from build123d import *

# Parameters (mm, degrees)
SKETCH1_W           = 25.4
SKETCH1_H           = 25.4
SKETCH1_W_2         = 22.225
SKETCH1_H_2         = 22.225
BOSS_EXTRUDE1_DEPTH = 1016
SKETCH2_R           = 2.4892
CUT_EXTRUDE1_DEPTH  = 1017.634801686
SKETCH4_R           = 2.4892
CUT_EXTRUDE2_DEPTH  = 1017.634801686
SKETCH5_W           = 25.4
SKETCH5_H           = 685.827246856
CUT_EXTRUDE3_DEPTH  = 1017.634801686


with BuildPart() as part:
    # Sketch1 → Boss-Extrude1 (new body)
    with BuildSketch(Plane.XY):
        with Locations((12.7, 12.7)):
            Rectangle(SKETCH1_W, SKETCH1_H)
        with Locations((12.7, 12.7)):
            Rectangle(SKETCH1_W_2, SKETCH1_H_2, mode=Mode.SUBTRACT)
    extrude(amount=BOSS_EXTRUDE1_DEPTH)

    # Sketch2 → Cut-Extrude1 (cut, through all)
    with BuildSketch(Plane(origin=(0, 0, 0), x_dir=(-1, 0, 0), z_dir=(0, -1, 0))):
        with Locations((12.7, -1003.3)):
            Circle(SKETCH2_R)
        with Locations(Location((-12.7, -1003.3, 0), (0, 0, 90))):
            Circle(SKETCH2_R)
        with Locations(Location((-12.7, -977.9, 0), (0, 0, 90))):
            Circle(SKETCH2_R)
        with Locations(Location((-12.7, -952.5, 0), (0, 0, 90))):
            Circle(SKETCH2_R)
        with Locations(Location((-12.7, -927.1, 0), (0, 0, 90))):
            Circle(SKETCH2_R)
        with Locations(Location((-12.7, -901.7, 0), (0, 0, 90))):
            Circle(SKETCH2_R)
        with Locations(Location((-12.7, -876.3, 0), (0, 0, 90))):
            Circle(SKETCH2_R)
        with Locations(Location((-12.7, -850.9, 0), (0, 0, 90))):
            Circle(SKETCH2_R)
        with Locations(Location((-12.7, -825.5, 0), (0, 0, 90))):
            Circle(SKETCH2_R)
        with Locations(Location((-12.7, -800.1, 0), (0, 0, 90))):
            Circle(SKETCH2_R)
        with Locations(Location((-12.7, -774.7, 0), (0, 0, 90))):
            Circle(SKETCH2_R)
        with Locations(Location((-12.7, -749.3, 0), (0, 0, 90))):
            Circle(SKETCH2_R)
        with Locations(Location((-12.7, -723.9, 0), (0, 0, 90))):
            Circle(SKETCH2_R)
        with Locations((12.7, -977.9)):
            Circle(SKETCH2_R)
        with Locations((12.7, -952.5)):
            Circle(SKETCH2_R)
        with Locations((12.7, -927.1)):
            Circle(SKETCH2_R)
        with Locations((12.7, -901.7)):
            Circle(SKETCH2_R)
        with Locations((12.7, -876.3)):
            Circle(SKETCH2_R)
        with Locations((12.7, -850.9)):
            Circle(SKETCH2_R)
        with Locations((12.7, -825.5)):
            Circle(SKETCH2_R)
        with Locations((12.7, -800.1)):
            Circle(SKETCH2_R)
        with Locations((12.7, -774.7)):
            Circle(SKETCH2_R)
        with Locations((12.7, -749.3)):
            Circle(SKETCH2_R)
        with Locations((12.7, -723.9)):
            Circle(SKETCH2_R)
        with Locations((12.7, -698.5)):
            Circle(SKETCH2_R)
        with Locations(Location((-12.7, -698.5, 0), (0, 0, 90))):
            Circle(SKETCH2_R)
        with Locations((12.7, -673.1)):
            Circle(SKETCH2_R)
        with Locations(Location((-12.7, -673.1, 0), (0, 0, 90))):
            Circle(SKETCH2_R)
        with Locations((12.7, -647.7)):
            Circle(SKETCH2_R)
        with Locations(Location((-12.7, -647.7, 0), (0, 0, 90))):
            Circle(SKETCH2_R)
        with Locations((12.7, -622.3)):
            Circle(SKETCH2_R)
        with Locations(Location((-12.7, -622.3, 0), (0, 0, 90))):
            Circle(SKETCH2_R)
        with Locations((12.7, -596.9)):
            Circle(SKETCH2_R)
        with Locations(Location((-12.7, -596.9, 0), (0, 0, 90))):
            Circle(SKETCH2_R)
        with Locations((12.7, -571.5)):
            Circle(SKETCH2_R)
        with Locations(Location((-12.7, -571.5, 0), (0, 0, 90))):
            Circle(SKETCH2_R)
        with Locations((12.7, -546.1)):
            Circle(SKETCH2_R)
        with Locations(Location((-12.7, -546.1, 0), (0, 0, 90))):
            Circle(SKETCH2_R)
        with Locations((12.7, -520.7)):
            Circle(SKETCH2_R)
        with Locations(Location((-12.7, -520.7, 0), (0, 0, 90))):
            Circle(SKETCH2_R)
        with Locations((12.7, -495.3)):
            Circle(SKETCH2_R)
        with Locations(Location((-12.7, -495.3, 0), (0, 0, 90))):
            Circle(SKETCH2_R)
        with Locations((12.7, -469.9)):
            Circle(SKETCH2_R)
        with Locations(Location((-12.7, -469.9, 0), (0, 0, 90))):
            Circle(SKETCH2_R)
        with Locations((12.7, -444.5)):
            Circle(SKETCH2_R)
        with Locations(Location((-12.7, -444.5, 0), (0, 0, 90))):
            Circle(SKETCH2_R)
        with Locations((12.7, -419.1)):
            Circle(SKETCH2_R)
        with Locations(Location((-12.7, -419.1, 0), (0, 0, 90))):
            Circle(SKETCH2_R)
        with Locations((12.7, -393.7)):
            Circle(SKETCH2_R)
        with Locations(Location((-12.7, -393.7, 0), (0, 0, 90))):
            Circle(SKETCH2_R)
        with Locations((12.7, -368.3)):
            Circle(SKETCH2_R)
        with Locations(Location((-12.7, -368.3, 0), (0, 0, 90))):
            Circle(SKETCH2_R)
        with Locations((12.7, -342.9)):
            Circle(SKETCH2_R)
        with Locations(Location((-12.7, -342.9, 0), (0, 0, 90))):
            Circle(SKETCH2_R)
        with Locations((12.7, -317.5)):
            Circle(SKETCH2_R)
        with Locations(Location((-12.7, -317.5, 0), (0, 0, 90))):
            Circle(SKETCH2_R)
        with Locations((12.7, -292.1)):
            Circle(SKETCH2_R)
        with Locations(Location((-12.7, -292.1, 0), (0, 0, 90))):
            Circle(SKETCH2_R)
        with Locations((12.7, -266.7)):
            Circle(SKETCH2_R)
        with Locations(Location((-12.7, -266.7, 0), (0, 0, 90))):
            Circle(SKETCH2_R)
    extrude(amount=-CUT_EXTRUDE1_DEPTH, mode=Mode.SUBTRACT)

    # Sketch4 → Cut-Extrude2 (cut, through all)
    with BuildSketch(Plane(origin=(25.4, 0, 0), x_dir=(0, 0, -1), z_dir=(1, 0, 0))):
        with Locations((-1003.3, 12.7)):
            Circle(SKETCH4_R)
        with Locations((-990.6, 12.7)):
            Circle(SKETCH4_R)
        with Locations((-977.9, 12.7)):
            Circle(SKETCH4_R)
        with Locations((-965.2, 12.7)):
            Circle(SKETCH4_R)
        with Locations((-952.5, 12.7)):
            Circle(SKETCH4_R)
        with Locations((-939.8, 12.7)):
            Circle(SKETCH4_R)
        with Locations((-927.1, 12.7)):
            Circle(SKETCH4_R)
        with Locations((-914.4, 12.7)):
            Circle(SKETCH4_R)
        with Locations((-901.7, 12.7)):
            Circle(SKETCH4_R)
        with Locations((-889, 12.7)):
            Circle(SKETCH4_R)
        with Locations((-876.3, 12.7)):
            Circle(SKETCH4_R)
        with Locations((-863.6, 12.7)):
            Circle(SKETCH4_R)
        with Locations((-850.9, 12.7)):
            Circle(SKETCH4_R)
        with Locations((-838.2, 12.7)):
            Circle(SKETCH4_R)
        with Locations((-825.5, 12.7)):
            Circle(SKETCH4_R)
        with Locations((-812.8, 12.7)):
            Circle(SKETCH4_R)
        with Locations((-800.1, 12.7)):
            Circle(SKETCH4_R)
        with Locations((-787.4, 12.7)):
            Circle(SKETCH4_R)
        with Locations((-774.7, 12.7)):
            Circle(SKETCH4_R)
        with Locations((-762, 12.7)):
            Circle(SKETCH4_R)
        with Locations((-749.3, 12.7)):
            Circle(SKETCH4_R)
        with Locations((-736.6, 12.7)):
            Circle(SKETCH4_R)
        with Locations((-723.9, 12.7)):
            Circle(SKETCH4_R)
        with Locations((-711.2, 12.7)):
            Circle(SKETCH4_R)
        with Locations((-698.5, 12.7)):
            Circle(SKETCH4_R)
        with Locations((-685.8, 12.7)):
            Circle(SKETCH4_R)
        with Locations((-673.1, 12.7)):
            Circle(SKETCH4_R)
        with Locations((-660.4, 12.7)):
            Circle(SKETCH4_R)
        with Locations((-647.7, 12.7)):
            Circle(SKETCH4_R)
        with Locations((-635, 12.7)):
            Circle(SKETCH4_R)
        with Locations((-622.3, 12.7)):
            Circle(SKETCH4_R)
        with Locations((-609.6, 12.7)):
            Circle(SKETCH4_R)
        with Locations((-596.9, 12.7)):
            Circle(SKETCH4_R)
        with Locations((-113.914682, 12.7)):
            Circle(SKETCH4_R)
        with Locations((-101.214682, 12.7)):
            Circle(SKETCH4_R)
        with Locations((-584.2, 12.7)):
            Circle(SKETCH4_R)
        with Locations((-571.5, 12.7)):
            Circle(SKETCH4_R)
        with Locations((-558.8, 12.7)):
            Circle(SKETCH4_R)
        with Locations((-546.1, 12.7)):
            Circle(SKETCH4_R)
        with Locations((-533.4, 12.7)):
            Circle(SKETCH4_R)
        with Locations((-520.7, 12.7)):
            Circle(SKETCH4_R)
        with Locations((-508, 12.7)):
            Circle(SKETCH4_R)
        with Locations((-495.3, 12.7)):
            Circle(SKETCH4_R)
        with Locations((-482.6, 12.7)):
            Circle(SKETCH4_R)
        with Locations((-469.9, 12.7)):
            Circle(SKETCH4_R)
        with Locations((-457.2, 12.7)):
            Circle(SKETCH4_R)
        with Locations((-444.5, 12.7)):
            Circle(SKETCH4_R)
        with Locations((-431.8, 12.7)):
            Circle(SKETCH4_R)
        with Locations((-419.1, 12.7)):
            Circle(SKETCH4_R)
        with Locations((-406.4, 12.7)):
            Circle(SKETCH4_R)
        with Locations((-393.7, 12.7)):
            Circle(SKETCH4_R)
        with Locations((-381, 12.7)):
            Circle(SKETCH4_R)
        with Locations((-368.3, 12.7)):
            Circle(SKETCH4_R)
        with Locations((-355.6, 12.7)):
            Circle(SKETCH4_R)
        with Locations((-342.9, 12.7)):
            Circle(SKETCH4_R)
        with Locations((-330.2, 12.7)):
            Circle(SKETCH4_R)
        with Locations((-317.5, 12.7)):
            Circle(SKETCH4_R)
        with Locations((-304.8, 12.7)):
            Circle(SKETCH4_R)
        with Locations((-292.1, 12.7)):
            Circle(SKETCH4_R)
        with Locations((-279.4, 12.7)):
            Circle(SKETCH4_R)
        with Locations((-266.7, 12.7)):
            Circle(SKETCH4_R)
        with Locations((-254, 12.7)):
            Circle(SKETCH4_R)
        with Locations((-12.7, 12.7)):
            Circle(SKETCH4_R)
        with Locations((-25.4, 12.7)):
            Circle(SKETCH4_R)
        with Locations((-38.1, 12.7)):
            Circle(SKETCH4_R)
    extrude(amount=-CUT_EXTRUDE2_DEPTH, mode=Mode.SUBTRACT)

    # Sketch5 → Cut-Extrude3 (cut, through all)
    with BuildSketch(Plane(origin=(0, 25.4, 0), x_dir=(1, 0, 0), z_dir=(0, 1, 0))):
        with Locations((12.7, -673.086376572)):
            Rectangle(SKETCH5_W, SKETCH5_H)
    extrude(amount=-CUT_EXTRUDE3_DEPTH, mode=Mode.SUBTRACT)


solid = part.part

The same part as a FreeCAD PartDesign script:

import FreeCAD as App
import Part
import Sketcher
Q = App.Units.Quantity

doc = App.newDocument("Part")
params = doc.addObject("Spreadsheet::Sheet", "Params")
for row, (alias, value) in enumerate([
    ("sketch1_width", "1 in"),
    ("sketch1_width2", "0.875 in"),
    ("pad1_length", "40 in"),
    ("sketch2_diameter", "0.196 in"),
    ("sketch3_diameter", "0.196 in"),
    ("sketch4_width", "1 in"),
], start=1):
    params.set(f"A{row}", alias)
    params.set(f"B{row}", "=" + value)
    params.setAlias(f"B{row}", alias)

body = doc.addObject("PartDesign::Body", "Body")

sketch1 = doc.addObject("Sketcher::SketchObject", "Sketch")
body.addObject(sketch1)
sketch1.AttachmentSupport = (doc.XY_Plane, [""])
sketch1.MapMode = "FlatFace"
sketch1.addGeometry([
    Part.LineSegment(App.Vector(0, 25, 0), App.Vector(0, 0, 0)),
    Part.LineSegment(App.Vector(0, 0, 0), App.Vector(25, 0, 0)),
    Part.LineSegment(App.Vector(25, 0, 0), App.Vector(25, 25, 0)),
    Part.LineSegment(App.Vector(25, 25, 0), App.Vector(0, 25, 0)),
    Part.LineSegment(App.Vector(24, 2, 0), App.Vector(2, 2, 0)),
    Part.LineSegment(App.Vector(2, 2, 0), App.Vector(2, 24, 0)),
    Part.LineSegment(App.Vector(2, 24, 0), App.Vector(24, 24, 0)),
    Part.LineSegment(App.Vector(24, 24, 0), App.Vector(24, 2, 0)),
], False)
sketch1.addConstraint([
    Sketcher.Constraint("Coincident", 0, 2, 1, 1),
    Sketcher.Constraint("Coincident", 1, 2, 2, 1),
    Sketcher.Constraint("Coincident", 2, 2, 3, 1),
    Sketcher.Constraint("Coincident", 3, 2, 0, 1),
    Sketcher.Constraint("Coincident", 4, 2, 5, 1),
    Sketcher.Constraint("Coincident", 5, 2, 6, 1),
    Sketcher.Constraint("Coincident", 6, 2, 7, 1),
    Sketcher.Constraint("Coincident", 7, 2, 4, 1),
    Sketcher.Constraint("Vertical", 0),
    Sketcher.Constraint("Horizontal", 1),
    Sketcher.Constraint("Vertical", 2),
    Sketcher.Constraint("Horizontal", 3),
    Sketcher.Constraint("Horizontal", 4),
    Sketcher.Constraint("Vertical", 5),
    Sketcher.Constraint("Horizontal", 6),
    Sketcher.Constraint("Vertical", 7),
    Sketcher.Constraint("Coincident", 0, 2, -1, 1),
    Sketcher.Constraint("Equal", 3, 0),
    Sketcher.Constraint("Equal", 6, 5),
    Sketcher.Constraint("DistanceX", 1, 1, 1, 2, Q("1 in")),
    Sketcher.Constraint("DistanceX", 4, 2, 4, 1, Q("0.875 in")),
    Sketcher.Constraint("DistanceX", -1, 1, 4, 2, Q("0.0625 in")),
    Sketcher.Constraint("DistanceY", -1, 1, 4, 2, Q("0.0625 in")),
])
sketch1.setExpression("Constraints[19]", "Params.sketch1_width")
sketch1.setExpression("Constraints[20]", "Params.sketch1_width2")
pad1 = doc.addObject("PartDesign::Pad", "Pad")
body.addObject(pad1)
pad1.Profile = sketch1
pad1.setExpression("Length", "Params.pad1_length")

sketch2 = doc.addObject("Sketcher::SketchObject", "Sketch001")
body.addObject(sketch2)
sketch2.AttachmentSupport = (doc.XZ_Plane, [""])
sketch2.MapMode = "FlatFace"
sketch2.addGeometry([
    Part.Circle(App.Vector(-12.7, 1003.3, 0), App.Vector(0, 0, 1), 2.5),
    Part.Circle(App.Vector(12.7, 1003.3, 0), App.Vector(0, 0, 1), 2.5),
    Part.Circle(App.Vector(12.7, 977.9, 0), App.Vector(0, 0, 1), 2.5),
    Part.Circle(App.Vector(12.7, 952.5, 0), App.Vector(0, 0, 1), 2.5),
    Part.Circle(App.Vector(12.7, 927.1, 0), App.Vector(0, 0, 1), 2.5),
    Part.Circle(App.Vector(12.7, 901.7, 0), App.Vector(0, 0, 1), 2.5),
    Part.Circle(App.Vector(12.7, 876.3, 0), App.Vector(0, 0, 1), 2.5),
    Part.Circle(App.Vector(12.7, 850.9, 0), App.Vector(0, 0, 1), 2.5),
    Part.Circle(App.Vector(12.7, 825.5, 0), App.Vector(0, 0, 1), 2.5),
    Part.Circle(App.Vector(12.7, 800.1, 0), App.Vector(0, 0, 1), 2.5),
    Part.Circle(App.Vector(12.7, 774.7, 0), App.Vector(0, 0, 1), 2.5),
    Part.Circle(App.Vector(12.7, 749.3, 0), App.Vector(0, 0, 1), 2.5),
    Part.Circle(App.Vector(12.7, 723.9, 0), App.Vector(0, 0, 1), 2.5),
    Part.Circle(App.Vector(-12.7, 977.9, 0), App.Vector(0, 0, 1), 2.5),
    Part.Circle(App.Vector(-12.7, 952.5, 0), App.Vector(0, 0, 1), 2.5),
    Part.Circle(App.Vector(-12.7, 927.1, 0), App.Vector(0, 0, 1), 2.5),
    Part.Circle(App.Vector(-12.7, 901.7, 0), App.Vector(0, 0, 1), 2.5),
    Part.Circle(App.Vector(-12.7, 876.3, 0), App.Vector(0, 0, 1), 2.5),
    Part.Circle(App.Vector(-12.7, 850.9, 0), App.Vector(0, 0, 1), 2.5),
    Part.Circle(App.Vector(-12.7, 825.5, 0), App.Vector(0, 0, 1), 2.5),
    Part.Circle(App.Vector(-12.7, 800.1, 0), App.Vector(0, 0, 1), 2.5),
    Part.Circle(App.Vector(-12.7, 774.7, 0), App.Vector(0, 0, 1), 2.5),
    Part.Circle(App.Vector(-12.7, 749.3, 0), App.Vector(0, 0, 1), 2.5),
    Part.Circle(App.Vector(-12.7, 723.9, 0), App.Vector(0, 0, 1), 2.5),
    Part.Circle(App.Vector(-12.7, 698.5, 0), App.Vector(0, 0, 1), 2.5),
    Part.Circle(App.Vector(12.7, 698.5, 0), App.Vector(0, 0, 1), 2.5),
    Part.Circle(App.Vector(-12.7, 673.1, 0), App.Vector(0, 0, 1), 2.5),
    Part.Circle(App.Vector(12.7, 673.1, 0), App.Vector(0, 0, 1), 2.5),
    Part.Circle(App.Vector(-12.7, 647.7, 0), App.Vector(0, 0, 1), 2.5),
    Part.Circle(App.Vector(12.7, 647.7, 0), App.Vector(0, 0, 1), 2.5),
    Part.Circle(App.Vector(-12.7, 622.3, 0), App.Vector(0, 0, 1), 2.5),
    Part.Circle(App.Vector(12.7, 622.3, 0), App.Vector(0, 0, 1), 2.5),
    Part.Circle(App.Vector(-12.7, 596.9, 0), App.Vector(0, 0, 1), 2.5),
    Part.Circle(App.Vector(12.7, 596.9, 0), App.Vector(0, 0, 1), 2.5),
    Part.Circle(App.Vector(-12.7, 571.5, 0), App.Vector(0, 0, 1), 2.5),
    Part.Circle(App.Vector(12.7, 571.5, 0), App.Vector(0, 0, 1), 2.5),
    Part.Circle(App.Vector(-12.7, 546.1, 0), App.Vector(0, 0, 1), 2.5),
    Part.Circle(App.Vector(12.7, 546.1, 0), App.Vector(0, 0, 1), 2.5),
    Part.Circle(App.Vector(-12.7, 520.7, 0), App.Vector(0, 0, 1), 2.5),
    Part.Circle(App.Vector(12.7, 520.7, 0), App.Vector(0, 0, 1), 2.5),
    Part.Circle(App.Vector(-12.7, 495.3, 0), App.Vector(0, 0, 1), 2.5),
    Part.Circle(App.Vector(12.7, 495.3, 0), App.Vector(0, 0, 1), 2.5),
    Part.Circle(App.Vector(-12.7, 469.9, 0), App.Vector(0, 0, 1), 2.5),
    Part.Circle(App.Vector(12.7, 469.9, 0), App.Vector(0, 0, 1), 2.5),
    Part.Circle(App.Vector(-12.7, 444.5, 0), App.Vector(0, 0, 1), 2.5),
    Part.Circle(App.Vector(12.7, 444.5, 0), App.Vector(0, 0, 1), 2.5),
    Part.Circle(App.Vector(-12.7, 419.1, 0), App.Vector(0, 0, 1), 2.5),
    Part.Circle(App.Vector(12.7, 419.1, 0), App.Vector(0, 0, 1), 2.5),
    Part.Circle(App.Vector(-12.7, 393.7, 0), App.Vector(0, 0, 1), 2.5),
    Part.Circle(App.Vector(12.7, 393.7, 0), App.Vector(0, 0, 1), 2.5),
    Part.Circle(App.Vector(-12.7, 368.3, 0), App.Vector(0, 0, 1), 2.5),
    Part.Circle(App.Vector(12.7, 368.3, 0), App.Vector(0, 0, 1), 2.5),
    Part.Circle(App.Vector(-12.7, 342.9, 0), App.Vector(0, 0, 1), 2.5),
    Part.Circle(App.Vector(12.7, 342.9, 0), App.Vector(0, 0, 1), 2.5),
    Part.Circle(App.Vector(-12.7, 317.5, 0), App.Vector(0, 0, 1), 2.5),
    Part.Circle(App.Vector(12.7, 317.5, 0), App.Vector(0, 0, 1), 2.5),
    Part.Circle(App.Vector(-12.7, 292.1, 0), App.Vector(0, 0, 1), 2.5),
    Part.Circle(App.Vector(12.7, 292.1, 0), App.Vector(0, 0, 1), 2.5),
    Part.Circle(App.Vector(-12.7, 266.7, 0), App.Vector(0, 0, 1), 2.5),
    Part.Circle(App.Vector(12.7, 266.7, 0), App.Vector(0, 0, 1), 2.5),
], False)
sketch2.addConstraint([
    Sketcher.Constraint("Equal", 0, 1),
    Sketcher.Constraint("Equal", 1, 2),
    Sketcher.Constraint("Equal", 2, 3),
    Sketcher.Constraint("Equal", 3, 4),
    Sketcher.Constraint("Equal", 4, 5),
    Sketcher.Constraint("Equal", 5, 6),
    Sketcher.Constraint("Equal", 6, 7),
    Sketcher.Constraint("Equal", 7, 8),
    Sketcher.Constraint("Equal", 8, 9),
    Sketcher.Constraint("Equal", 9, 10),
    Sketcher.Constraint("Equal", 10, 11),
    Sketcher.Constraint("Equal", 11, 12),
    Sketcher.Constraint("Equal", 12, 13),
    Sketcher.Constraint("Equal", 13, 14),
    Sketcher.Constraint("Equal", 14, 15),
    Sketcher.Constraint("Equal", 15, 16),
    Sketcher.Constraint("Equal", 16, 17),
    Sketcher.Constraint("Equal", 17, 18),
    Sketcher.Constraint("Equal", 18, 19),
    Sketcher.Constraint("Equal", 19, 20),
    Sketcher.Constraint("Equal", 20, 21),
    Sketcher.Constraint("Equal", 21, 22),
    Sketcher.Constraint("Equal", 22, 23),
    Sketcher.Constraint("Equal", 23, 24),
    Sketcher.Constraint("Equal", 24, 25),
    Sketcher.Constraint("Equal", 25, 26),
    Sketcher.Constraint("Equal", 26, 27),
    Sketcher.Constraint("Equal", 27, 28),
    Sketcher.Constraint("Equal", 28, 29),
    Sketcher.Constraint("Equal", 29, 30),
    Sketcher.Constraint("Equal", 30, 31),
    Sketcher.Constraint("Equal", 31, 32),
    Sketcher.Constraint("Equal", 32, 33),
    Sketcher.Constraint("Equal", 33, 34),
    Sketcher.Constraint("Equal", 34, 35),
    Sketcher.Constraint("Equal", 35, 36),
    Sketcher.Constraint("Equal", 36, 37),
    Sketcher.Constraint("Equal", 37, 38),
    Sketcher.Constraint("Equal", 38, 39),
    Sketcher.Constraint("Equal", 39, 40),
    Sketcher.Constraint("Equal", 40, 41),
    Sketcher.Constraint("Equal", 41, 42),
    Sketcher.Constraint("Equal", 42, 43),
    Sketcher.Constraint("Equal", 43, 44),
    Sketcher.Constraint("Equal", 44, 45),
    Sketcher.Constraint("Equal", 45, 46),
    Sketcher.Constraint("Equal", 46, 47),
    Sketcher.Constraint("Equal", 47, 48),
    Sketcher.Constraint("Equal", 48, 49),
    Sketcher.Constraint("Equal", 49, 50),
    Sketcher.Constraint("Equal", 50, 51),
    Sketcher.Constraint("Equal", 51, 52),
    Sketcher.Constraint("Equal", 52, 53),
    Sketcher.Constraint("Equal", 53, 54),
    Sketcher.Constraint("Equal", 54, 55),
    Sketcher.Constraint("Equal", 55, 56),
    Sketcher.Constraint("Equal", 56, 57),
    Sketcher.Constraint("Equal", 57, 58),
    Sketcher.Constraint("Equal", 58, 59),
    Sketcher.Constraint("Symmetric", 0, 3, 1, 3, -2),
    Sketcher.Constraint("Symmetric", 2, 3, 13, 3, -2),
    Sketcher.Constraint("Symmetric", 3, 3, 14, 3, -2),
    Sketcher.Constraint("Symmetric", 4, 3, 15, 3, -2),
    Sketcher.Constraint("Symmetric", 5, 3, 16, 3, -2),
    Sketcher.Constraint("Symmetric", 6, 3, 17, 3, -2),
    Sketcher.Constraint("Symmetric", 7, 3, 18, 3, -2),
    Sketcher.Constraint("Symmetric", 8, 3, 19, 3, -2),
    Sketcher.Constraint("Symmetric", 9, 3, 20, 3, -2),
    Sketcher.Constraint("Symmetric", 10, 3, 21, 3, -2),
    Sketcher.Constraint("Symmetric", 11, 3, 22, 3, -2),
    Sketcher.Constraint("Symmetric", 12, 3, 23, 3, -2),
    Sketcher.Constraint("Symmetric", 24, 3, 25, 3, -2),
    Sketcher.Constraint("Symmetric", 26, 3, 27, 3, -2),
    Sketcher.Constraint("Symmetric", 28, 3, 29, 3, -2),
    Sketcher.Constraint("Symmetric", 30, 3, 31, 3, -2),
    Sketcher.Constraint("Symmetric", 32, 3, 33, 3, -2),
    Sketcher.Constraint("Symmetric", 34, 3, 35, 3, -2),
    Sketcher.Constraint("Symmetric", 36, 3, 37, 3, -2),
    Sketcher.Constraint("Symmetric", 38, 3, 39, 3, -2),
    Sketcher.Constraint("Symmetric", 40, 3, 41, 3, -2),
    Sketcher.Constraint("Symmetric", 42, 3, 43, 3, -2),
    Sketcher.Constraint("Symmetric", 44, 3, 45, 3, -2),
    Sketcher.Constraint("Symmetric", 46, 3, 47, 3, -2),
    Sketcher.Constraint("Symmetric", 48, 3, 49, 3, -2),
    Sketcher.Constraint("Symmetric", 50, 3, 51, 3, -2),
    Sketcher.Constraint("Symmetric", 52, 3, 53, 3, -2),
    Sketcher.Constraint("Symmetric", 54, 3, 55, 3, -2),
    Sketcher.Constraint("Symmetric", 56, 3, 57, 3, -2),
    Sketcher.Constraint("Symmetric", 58, 3, 59, 3, -2),
    Sketcher.Constraint("Vertical", 1, 3, 2, 3),
    Sketcher.Constraint("Vertical", 2, 3, 3, 3),
    Sketcher.Constraint("Vertical", 3, 3, 4, 3),
    Sketcher.Constraint("Vertical", 4, 3, 5, 3),
    Sketcher.Constraint("Vertical", 5, 3, 6, 3),
    Sketcher.Constraint("Vertical", 6, 3, 7, 3),
    Sketcher.Constraint("Vertical", 7, 3, 8, 3),
    Sketcher.Constraint("Vertical", 8, 3, 9, 3),
    Sketcher.Constraint("Vertical", 9, 3, 10, 3),
    Sketcher.Constraint("Vertical", 10, 3, 11, 3),
    Sketcher.Constraint("Vertical", 11, 3, 12, 3),
    Sketcher.Constraint("Vertical", 23, 3, 24, 3),
    Sketcher.Constraint("Vertical", 24, 3, 26, 3),
    Sketcher.Constraint("Vertical", 26, 3, 28, 3),
    Sketcher.Constraint("Vertical", 28, 3, 30, 3),
    Sketcher.Constraint("Vertical", 30, 3, 32, 3),
    Sketcher.Constraint("Vertical", 32, 3, 34, 3),
    Sketcher.Constraint("Vertical", 34, 3, 36, 3),
    Sketcher.Constraint("Vertical", 36, 3, 38, 3),
    Sketcher.Constraint("Vertical", 38, 3, 40, 3),
    Sketcher.Constraint("Vertical", 40, 3, 42, 3),
    Sketcher.Constraint("Vertical", 42, 3, 44, 3),
    Sketcher.Constraint("Vertical", 44, 3, 46, 3),
    Sketcher.Constraint("Vertical", 46, 3, 48, 3),
    Sketcher.Constraint("Vertical", 48, 3, 50, 3),
    Sketcher.Constraint("Vertical", 50, 3, 52, 3),
    Sketcher.Constraint("Vertical", 52, 3, 54, 3),
    Sketcher.Constraint("Vertical", 54, 3, 56, 3),
    Sketcher.Constraint("Vertical", 56, 3, 58, 3),
    Sketcher.Constraint("Diameter", 0, Q("0.196 in")),
    Sketcher.Constraint("DistanceX", 0, 3, 1, 3, Q("1 in")),
    Sketcher.Constraint("DistanceY", 2, 3, 1, 3, Q("1 in")),
    Sketcher.Constraint("DistanceY", 3, 3, 2, 3, Q("1 in")),
    Sketcher.Constraint("DistanceY", 4, 3, 3, 3, Q("1 in")),
    Sketcher.Constraint("DistanceY", 5, 3, 4, 3, Q("1 in")),
    Sketcher.Constraint("DistanceY", 6, 3, 5, 3, Q("1 in")),
    Sketcher.Constraint("DistanceY", 7, 3, 6, 3, Q("1 in")),
    Sketcher.Constraint("DistanceY", 8, 3, 7, 3, Q("1 in")),
    Sketcher.Constraint("DistanceY", 9, 3, 8, 3, Q("1 in")),
    Sketcher.Constraint("DistanceY", 10, 3, 9, 3, Q("1 in")),
    Sketcher.Constraint("DistanceY", 11, 3, 10, 3, Q("1 in")),
    Sketcher.Constraint("DistanceY", 12, 3, 11, 3, Q("1 in")),
    Sketcher.Constraint("DistanceY", 24, 3, 23, 3, Q("1 in")),
    Sketcher.Constraint("DistanceY", 26, 3, 24, 3, Q("1 in")),
    Sketcher.Constraint("DistanceY", 28, 3, 26, 3, Q("1 in")),
    Sketcher.Constraint("DistanceY", 30, 3, 28, 3, Q("1 in")),
    Sketcher.Constraint("DistanceY", 32, 3, 30, 3, Q("1 in")),
    Sketcher.Constraint("DistanceY", 34, 3, 32, 3, Q("1 in")),
    Sketcher.Constraint("DistanceY", 36, 3, 34, 3, Q("1 in")),
    Sketcher.Constraint("DistanceY", 38, 3, 36, 3, Q("1 in")),
    Sketcher.Constraint("DistanceY", 40, 3, 38, 3, Q("1 in")),
    Sketcher.Constraint("DistanceY", 42, 3, 40, 3, Q("1 in")),
    Sketcher.Constraint("DistanceY", 44, 3, 42, 3, Q("1 in")),
    Sketcher.Constraint("DistanceY", 46, 3, 44, 3, Q("1 in")),
    Sketcher.Constraint("DistanceY", 48, 3, 46, 3, Q("1 in")),
    Sketcher.Constraint("DistanceY", 50, 3, 48, 3, Q("1 in")),
    Sketcher.Constraint("DistanceY", 52, 3, 50, 3, Q("1 in")),
    Sketcher.Constraint("DistanceY", 54, 3, 52, 3, Q("1 in")),
    Sketcher.Constraint("DistanceY", 56, 3, 54, 3, Q("1 in")),
    Sketcher.Constraint("DistanceY", 58, 3, 56, 3, Q("1 in")),
    Sketcher.Constraint("DistanceY", -1, 1, 0, 3, Q("39.5 in")),
])
sketch2.setExpression("Constraints[118]", "Params.sketch2_diameter")
pocket1 = doc.addObject("PartDesign::Pocket", "Pocket")
body.addObject(pocket1)
pocket1.Profile = sketch2
pocket1.Type = "ThroughAll"

sketch3 = doc.addObject("Sketcher::SketchObject", "Sketch002")
body.addObject(sketch3)
sketch3.AttachmentSupport = (doc.YZ_Plane, [""])
sketch3.MapMode = "FlatFace"
sketch3.AttachmentOffset = App.Placement(App.Vector(0, 0, 1 * 25.4), App.Rotation())
sketch3.addGeometry([
    Part.Circle(App.Vector(12.7, 1003.3, 0), App.Vector(0, 0, 1), 2.5),
    Part.Circle(App.Vector(12.7, 990.6, 0), App.Vector(0, 0, 1), 2.5),
    Part.Circle(App.Vector(12.7, 977.9, 0), App.Vector(0, 0, 1), 2.5),
    Part.Circle(App.Vector(12.7, 965.2, 0), App.Vector(0, 0, 1), 2.5),
    Part.Circle(App.Vector(12.7, 952.5, 0), App.Vector(0, 0, 1), 2.5),
    Part.Circle(App.Vector(12.7, 939.8, 0), App.Vector(0, 0, 1), 2.5),
    Part.Circle(App.Vector(12.7, 927.1, 0), App.Vector(0, 0, 1), 2.5),
    Part.Circle(App.Vector(12.7, 914.4, 0), App.Vector(0, 0, 1), 2.5),
    Part.Circle(App.Vector(12.7, 901.7, 0), App.Vector(0, 0, 1), 2.5),
    Part.Circle(App.Vector(12.7, 889, 0), App.Vector(0, 0, 1), 2.5),
    Part.Circle(App.Vector(12.7, 876.3, 0), App.Vector(0, 0, 1), 2.5),
    Part.Circle(App.Vector(12.7, 863.6, 0), App.Vector(0, 0, 1), 2.5),
    Part.Circle(App.Vector(12.7, 850.9, 0), App.Vector(0, 0, 1), 2.5),
    Part.Circle(App.Vector(12.7, 838.2, 0), App.Vector(0, 0, 1), 2.5),
    Part.Circle(App.Vector(12.7, 825.5, 0), App.Vector(0, 0, 1), 2.5),
    Part.Circle(App.Vector(12.7, 812.8, 0), App.Vector(0, 0, 1), 2.5),
    Part.Circle(App.Vector(12.7, 800.1, 0), App.Vector(0, 0, 1), 2.5),
    Part.Circle(App.Vector(12.7, 787.4, 0), App.Vector(0, 0, 1), 2.5),
    Part.Circle(App.Vector(12.7, 774.7, 0), App.Vector(0, 0, 1), 2.5),
    Part.Circle(App.Vector(12.7, 762, 0), App.Vector(0, 0, 1), 2.5),
    Part.Circle(App.Vector(12.7, 749.3, 0), App.Vector(0, 0, 1), 2.5),
    Part.Circle(App.Vector(12.7, 736.6, 0), App.Vector(0, 0, 1), 2.5),
    Part.Circle(App.Vector(12.7, 723.9, 0), App.Vector(0, 0, 1), 2.5),
    Part.Circle(App.Vector(12.7, 711.2, 0), App.Vector(0, 0, 1), 2.5),
    Part.Circle(App.Vector(12.7, 698.5, 0), App.Vector(0, 0, 1), 2.5),
    Part.Circle(App.Vector(12.7, 685.8, 0), App.Vector(0, 0, 1), 2.5),
    Part.Circle(App.Vector(12.7, 673.1, 0), App.Vector(0, 0, 1), 2.5),
    Part.Circle(App.Vector(12.7, 660.4, 0), App.Vector(0, 0, 1), 2.5),
    Part.Circle(App.Vector(12.7, 647.7, 0), App.Vector(0, 0, 1), 2.5),
    Part.Circle(App.Vector(12.7, 635, 0), App.Vector(0, 0, 1), 2.5),
    Part.Circle(App.Vector(12.7, 622.3, 0), App.Vector(0, 0, 1), 2.5),
    Part.Circle(App.Vector(12.7, 609.6, 0), App.Vector(0, 0, 1), 2.5),
    Part.Circle(App.Vector(12.7, 596.9, 0), App.Vector(0, 0, 1), 2.5),
    Part.Circle(App.Vector(12.7, 113.9, 0), App.Vector(0, 0, 1), 2.5),
    Part.Circle(App.Vector(12.7, 101.2, 0), App.Vector(0, 0, 1), 2.5),
    Part.Circle(App.Vector(12.7, 584.2, 0), App.Vector(0, 0, 1), 2.5),
    Part.Circle(App.Vector(12.7, 571.5, 0), App.Vector(0, 0, 1), 2.5),
    Part.Circle(App.Vector(12.7, 558.8, 0), App.Vector(0, 0, 1), 2.5),
    Part.Circle(App.Vector(12.7, 546.1, 0), App.Vector(0, 0, 1), 2.5),
    Part.Circle(App.Vector(12.7, 533.4, 0), App.Vector(0, 0, 1), 2.5),
    Part.Circle(App.Vector(12.7, 520.7, 0), App.Vector(0, 0, 1), 2.5),
    Part.Circle(App.Vector(12.7, 508, 0), App.Vector(0, 0, 1), 2.5),
    Part.Circle(App.Vector(12.7, 495.3, 0), App.Vector(0, 0, 1), 2.5),
    Part.Circle(App.Vector(12.7, 482.6, 0), App.Vector(0, 0, 1), 2.5),
    Part.Circle(App.Vector(12.7, 469.9, 0), App.Vector(0, 0, 1), 2.5),
    Part.Circle(App.Vector(12.7, 457.2, 0), App.Vector(0, 0, 1), 2.5),
    Part.Circle(App.Vector(12.7, 444.5, 0), App.Vector(0, 0, 1), 2.5),
    Part.Circle(App.Vector(12.7, 431.8, 0), App.Vector(0, 0, 1), 2.5),
    Part.Circle(App.Vector(12.7, 419.1, 0), App.Vector(0, 0, 1), 2.5),
    Part.Circle(App.Vector(12.7, 406.4, 0), App.Vector(0, 0, 1), 2.5),
    Part.Circle(App.Vector(12.7, 393.7, 0), App.Vector(0, 0, 1), 2.5),
    Part.Circle(App.Vector(12.7, 381, 0), App.Vector(0, 0, 1), 2.5),
    Part.Circle(App.Vector(12.7, 368.3, 0), App.Vector(0, 0, 1), 2.5),
    Part.Circle(App.Vector(12.7, 355.6, 0), App.Vector(0, 0, 1), 2.5),
    Part.Circle(App.Vector(12.7, 342.9, 0), App.Vector(0, 0, 1), 2.5),
    Part.Circle(App.Vector(12.7, 330.2, 0), App.Vector(0, 0, 1), 2.5),
    Part.Circle(App.Vector(12.7, 317.5, 0), App.Vector(0, 0, 1), 2.5),
    Part.Circle(App.Vector(12.7, 304.8, 0), App.Vector(0, 0, 1), 2.5),
    Part.Circle(App.Vector(12.7, 292.1, 0), App.Vector(0, 0, 1), 2.5),
    Part.Circle(App.Vector(12.7, 279.4, 0), App.Vector(0, 0, 1), 2.5),
    Part.Circle(App.Vector(12.7, 266.7, 0), App.Vector(0, 0, 1), 2.5),
    Part.Circle(App.Vector(12.7, 254, 0), App.Vector(0, 0, 1), 2.5),
    Part.Circle(App.Vector(12.7, 12.7, 0), App.Vector(0, 0, 1), 2.5),
    Part.Circle(App.Vector(12.7, 25.4, 0), App.Vector(0, 0, 1), 2.5),
    Part.Circle(App.Vector(12.7, 38.1, 0), App.Vector(0, 0, 1), 2.5),
], False)
sketch3.addConstraint([
    Sketcher.Constraint("Equal", 0, 1),
    Sketcher.Constraint("Equal", 1, 2),
    Sketcher.Constraint("Equal", 2, 3),
    Sketcher.Constraint("Equal", 3, 4),
    Sketcher.Constraint("Equal", 4, 5),
    Sketcher.Constraint("Equal", 5, 6),
    Sketcher.Constraint("Equal", 6, 7),
    Sketcher.Constraint("Equal", 7, 8),
    Sketcher.Constraint("Equal", 8, 9),
    Sketcher.Constraint("Equal", 9, 10),
    Sketcher.Constraint("Equal", 10, 11),
    Sketcher.Constraint("Equal", 11, 12),
    Sketcher.Constraint("Equal", 12, 13),
    Sketcher.Constraint("Equal", 13, 14),
    Sketcher.Constraint("Equal", 14, 15),
    Sketcher.Constraint("Equal", 15, 16),
    Sketcher.Constraint("Equal", 16, 17),
    Sketcher.Constraint("Equal", 17, 18),
    Sketcher.Constraint("Equal", 18, 19),
    Sketcher.Constraint("Equal", 19, 20),
    Sketcher.Constraint("Equal", 20, 21),
    Sketcher.Constraint("Equal", 21, 22),
    Sketcher.Constraint("Equal", 22, 23),
    Sketcher.Constraint("Equal", 23, 24),
    Sketcher.Constraint("Equal", 24, 25),
    Sketcher.Constraint("Equal", 25, 26),
    Sketcher.Constraint("Equal", 26, 27),
    Sketcher.Constraint("Equal", 27, 28),
    Sketcher.Constraint("Equal", 28, 29),
    Sketcher.Constraint("Equal", 29, 30),
    Sketcher.Constraint("Equal", 30, 31),
    Sketcher.Constraint("Equal", 31, 32),
    Sketcher.Constraint("Equal", 32, 33),
    Sketcher.Constraint("Equal", 33, 34),
    Sketcher.Constraint("Equal", 34, 35),
    Sketcher.Constraint("Equal", 35, 36),
    Sketcher.Constraint("Equal", 36, 37),
    Sketcher.Constraint("Equal", 37, 38),
    Sketcher.Constraint("Equal", 38, 39),
    Sketcher.Constraint("Equal", 39, 40),
    Sketcher.Constraint("Equal", 40, 41),
    Sketcher.Constraint("Equal", 41, 42),
    Sketcher.Constraint("Equal", 42, 43),
    Sketcher.Constraint("Equal", 43, 44),
    Sketcher.Constraint("Equal", 44, 45),
    Sketcher.Constraint("Equal", 45, 46),
    Sketcher.Constraint("Equal", 46, 47),
    Sketcher.Constraint("Equal", 47, 48),
    Sketcher.Constraint("Equal", 48, 49),
    Sketcher.Constraint("Equal", 49, 50),
    Sketcher.Constraint("Equal", 50, 51),
    Sketcher.Constraint("Equal", 51, 52),
    Sketcher.Constraint("Equal", 52, 53),
    Sketcher.Constraint("Equal", 53, 54),
    Sketcher.Constraint("Equal", 54, 55),
    Sketcher.Constraint("Equal", 55, 56),
    Sketcher.Constraint("Equal", 56, 57),
    Sketcher.Constraint("Equal", 57, 58),
    Sketcher.Constraint("Equal", 58, 59),
    Sketcher.Constraint("Equal", 59, 60),
    Sketcher.Constraint("Equal", 60, 61),
    Sketcher.Constraint("Equal", 61, 62),
    Sketcher.Constraint("Equal", 62, 63),
    Sketcher.Constraint("Equal", 63, 64),
    Sketcher.Constraint("Vertical", 0, 3, 1, 3),
    Sketcher.Constraint("Vertical", 1, 3, 2, 3),
    Sketcher.Constraint("Vertical", 2, 3, 3, 3),
    Sketcher.Constraint("Vertical", 3, 3, 4, 3),
    Sketcher.Constraint("Vertical", 4, 3, 5, 3),
    Sketcher.Constraint("Vertical", 5, 3, 6, 3),
    Sketcher.Constraint("Vertical", 6, 3, 7, 3),
    Sketcher.Constraint("Vertical", 7, 3, 8, 3),
    Sketcher.Constraint("Vertical", 8, 3, 9, 3),
    Sketcher.Constraint("Vertical", 9, 3, 10, 3),
    Sketcher.Constraint("Vertical", 10, 3, 11, 3),
    Sketcher.Constraint("Vertical", 11, 3, 12, 3),
    Sketcher.Constraint("Vertical", 12, 3, 13, 3),
    Sketcher.Constraint("Vertical", 13, 3, 14, 3),
    Sketcher.Constraint("Vertical", 14, 3, 15, 3),
    Sketcher.Constraint("Vertical", 15, 3, 16, 3),
    Sketcher.Constraint("Vertical", 16, 3, 17, 3),
    Sketcher.Constraint("Vertical", 17, 3, 18, 3),
    Sketcher.Constraint("Vertical", 18, 3, 19, 3),
    Sketcher.Constraint("Vertical", 19, 3, 20, 3),
    Sketcher.Constraint("Vertical", 20, 3, 21, 3),
    Sketcher.Constraint("Vertical", 21, 3, 22, 3),
    Sketcher.Constraint("Vertical", 22, 3, 23, 3),
    Sketcher.Constraint("Vertical", 23, 3, 24, 3),
    Sketcher.Constraint("Vertical", 24, 3, 25, 3),
    Sketcher.Constraint("Vertical", 25, 3, 26, 3),
    Sketcher.Constraint("Vertical", 26, 3, 27, 3),
    Sketcher.Constraint("Vertical", 27, 3, 28, 3),
    Sketcher.Constraint("Vertical", 28, 3, 29, 3),
    Sketcher.Constraint("Vertical", 29, 3, 30, 3),
    Sketcher.Constraint("Vertical", 30, 3, 31, 3),
    Sketcher.Constraint("Vertical", 31, 3, 32, 3),
    Sketcher.Constraint("Vertical", 32, 3, 33, 3),
    Sketcher.Constraint("Vertical", 33, 3, 34, 3),
    Sketcher.Constraint("Vertical", 34, 3, 35, 3),
    Sketcher.Constraint("Vertical", 35, 3, 36, 3),
    Sketcher.Constraint("Vertical", 36, 3, 37, 3),
    Sketcher.Constraint("Vertical", 37, 3, 38, 3),
    Sketcher.Constraint("Vertical", 38, 3, 39, 3),
    Sketcher.Constraint("Vertical", 39, 3, 40, 3),
    Sketcher.Constraint("Vertical", 40, 3, 41, 3),
    Sketcher.Constraint("Vertical", 41, 3, 42, 3),
    Sketcher.Constraint("Vertical", 42, 3, 43, 3),
    Sketcher.Constraint("Vertical", 43, 3, 44, 3),
    Sketcher.Constraint("Vertical", 44, 3, 45, 3),
    Sketcher.Constraint("Vertical", 45, 3, 46, 3),
    Sketcher.Constraint("Vertical", 46, 3, 47, 3),
    Sketcher.Constraint("Vertical", 47, 3, 48, 3),
    Sketcher.Constraint("Vertical", 48, 3, 49, 3),
    Sketcher.Constraint("Vertical", 49, 3, 50, 3),
    Sketcher.Constraint("Vertical", 50, 3, 51, 3),
    Sketcher.Constraint("Vertical", 51, 3, 52, 3),
    Sketcher.Constraint("Vertical", 52, 3, 53, 3),
    Sketcher.Constraint("Vertical", 53, 3, 54, 3),
    Sketcher.Constraint("Vertical", 54, 3, 55, 3),
    Sketcher.Constraint("Vertical", 55, 3, 56, 3),
    Sketcher.Constraint("Vertical", 56, 3, 57, 3),
    Sketcher.Constraint("Vertical", 57, 3, 58, 3),
    Sketcher.Constraint("Vertical", 58, 3, 59, 3),
    Sketcher.Constraint("Vertical", 59, 3, 60, 3),
    Sketcher.Constraint("Vertical", 60, 3, 61, 3),
    Sketcher.Constraint("Vertical", 61, 3, 62, 3),
    Sketcher.Constraint("Vertical", 62, 3, 63, 3),
    Sketcher.Constraint("Vertical", 63, 3, 64, 3),
    Sketcher.Constraint("Diameter", 0, Q("0.196 in")),
    Sketcher.Constraint("DistanceY", -1, 1, 1, 3, Q("39 in")),
    Sketcher.Constraint("DistanceY", -1, 1, 3, 3, Q("38 in")),
    Sketcher.Constraint("DistanceY", -1, 1, 5, 3, Q("37 in")),
    Sketcher.Constraint("DistanceY", -1, 1, 7, 3, Q("36 in")),
    Sketcher.Constraint("DistanceY", -1, 1, 9, 3, Q("35 in")),
    Sketcher.Constraint("DistanceY", -1, 1, 11, 3, Q("34 in")),
    Sketcher.Constraint("DistanceY", -1, 1, 13, 3, Q("33 in")),
    Sketcher.Constraint("DistanceY", -1, 1, 15, 3, Q("32 in")),
    Sketcher.Constraint("DistanceY", -1, 1, 17, 3, Q("31 in")),
    Sketcher.Constraint("DistanceY", -1, 1, 19, 3, Q("30 in")),
    Sketcher.Constraint("DistanceY", -1, 1, 21, 3, Q("29 in")),
    Sketcher.Constraint("DistanceY", -1, 1, 23, 3, Q("28 in")),
    Sketcher.Constraint("DistanceY", -1, 1, 25, 3, Q("27 in")),
    Sketcher.Constraint("DistanceY", -1, 1, 27, 3, Q("26 in")),
    Sketcher.Constraint("DistanceY", -1, 1, 29, 3, Q("25 in")),
    Sketcher.Constraint("DistanceY", -1, 1, 31, 3, Q("24 in")),
    Sketcher.Constraint("DistanceY", -1, 1, 35, 3, Q("23 in")),
    Sketcher.Constraint("DistanceY", -1, 1, 37, 3, Q("22 in")),
    Sketcher.Constraint("DistanceY", -1, 1, 39, 3, Q("21 in")),
    Sketcher.Constraint("DistanceY", -1, 1, 41, 3, Q("20 in")),
    Sketcher.Constraint("DistanceY", -1, 1, 43, 3, Q("19 in")),
    Sketcher.Constraint("DistanceY", -1, 1, 45, 3, Q("18 in")),
    Sketcher.Constraint("DistanceY", -1, 1, 47, 3, Q("17 in")),
    Sketcher.Constraint("DistanceY", -1, 1, 49, 3, Q("16 in")),
    Sketcher.Constraint("DistanceY", -1, 1, 51, 3, Q("15 in")),
    Sketcher.Constraint("DistanceY", -1, 1, 53, 3, Q("14 in")),
    Sketcher.Constraint("DistanceY", -1, 1, 55, 3, Q("13 in")),
    Sketcher.Constraint("DistanceY", -1, 1, 57, 3, Q("12 in")),
    Sketcher.Constraint("DistanceY", -1, 1, 59, 3, Q("11 in")),
    Sketcher.Constraint("DistanceY", -1, 1, 61, 3, Q("10 in")),
    Sketcher.Constraint("DistanceY", -1, 1, 63, 3, Q("1 in")),
    Sketcher.Constraint("DistanceX", -1, 1, 0, 3, Q("0.5 in")),
    Sketcher.Constraint("DistanceY", -1, 1, 0, 3, Q("39.5 in")),
    Sketcher.Constraint("DistanceY", -1, 1, 2, 3, Q("38.5 in")),
    Sketcher.Constraint("DistanceY", -1, 1, 4, 3, Q("37.5 in")),
    Sketcher.Constraint("DistanceY", -1, 1, 6, 3, Q("36.5 in")),
    Sketcher.Constraint("DistanceY", -1, 1, 8, 3, Q("35.5 in")),
    Sketcher.Constraint("DistanceY", -1, 1, 10, 3, Q("34.5 in")),
    Sketcher.Constraint("DistanceY", -1, 1, 12, 3, Q("33.5 in")),
    Sketcher.Constraint("DistanceY", -1, 1, 14, 3, Q("32.5 in")),
    Sketcher.Constraint("DistanceY", -1, 1, 16, 3, Q("31.5 in")),
    Sketcher.Constraint("DistanceY", -1, 1, 18, 3, Q("30.5 in")),
    Sketcher.Constraint("DistanceY", -1, 1, 20, 3, Q("29.5 in")),
    Sketcher.Constraint("DistanceY", -1, 1, 22, 3, Q("28.5 in")),
    Sketcher.Constraint("DistanceY", -1, 1, 24, 3, Q("27.5 in")),
    Sketcher.Constraint("DistanceY", -1, 1, 26, 3, Q("26.5 in")),
    Sketcher.Constraint("DistanceY", -1, 1, 28, 3, Q("25.5 in")),
    Sketcher.Constraint("DistanceY", -1, 1, 30, 3, Q("24.5 in")),
    Sketcher.Constraint("DistanceY", -1, 1, 32, 3, Q("23.5 in")),
    Sketcher.Constraint("DistanceY", -1, 1, 36, 3, Q("22.5 in")),
    Sketcher.Constraint("DistanceY", -1, 1, 38, 3, Q("21.5 in")),
    Sketcher.Constraint("DistanceY", -1, 1, 40, 3, Q("20.5 in")),
    Sketcher.Constraint("DistanceY", -1, 1, 42, 3, Q("19.5 in")),
    Sketcher.Constraint("DistanceY", -1, 1, 44, 3, Q("18.5 in")),
    Sketcher.Constraint("DistanceY", -1, 1, 46, 3, Q("17.5 in")),
    Sketcher.Constraint("DistanceY", -1, 1, 48, 3, Q("16.5 in")),
    Sketcher.Constraint("DistanceY", -1, 1, 50, 3, Q("15.5 in")),
    Sketcher.Constraint("DistanceY", -1, 1, 52, 3, Q("14.5 in")),
    Sketcher.Constraint("DistanceY", -1, 1, 54, 3, Q("13.5 in")),
    Sketcher.Constraint("DistanceY", -1, 1, 56, 3, Q("12.5 in")),
    Sketcher.Constraint("DistanceY", -1, 1, 58, 3, Q("11.5 in")),
    Sketcher.Constraint("DistanceY", -1, 1, 60, 3, Q("10.5 in")),
    Sketcher.Constraint("DistanceY", -1, 1, 62, 3, Q("0.5 in")),
    Sketcher.Constraint("DistanceY", -1, 1, 64, 3, Q("1.5 in")),
    Sketcher.Constraint("DistanceY", -1, 1, 33, 3, Q("113.914682 mm")),
    Sketcher.Constraint("DistanceY", -1, 1, 34, 3, Q("101.214682 mm")),
])
sketch3.setExpression("Constraints[128]", "Params.sketch3_diameter")
pocket2 = doc.addObject("PartDesign::Pocket", "Pocket001")
body.addObject(pocket2)
pocket2.Profile = sketch3
pocket2.Type = "ThroughAll"

sketch4 = doc.addObject("Sketcher::SketchObject", "Sketch003")
body.addObject(sketch4)
sketch4.AttachmentSupport = (doc.XZ_Plane, [""])
sketch4.MapMode = "FlatFace"
sketch4.AttachmentOffset = App.Placement(App.Vector(0, 0, -1 * 25.4), App.Rotation())
sketch4.addGeometry([
    Part.LineSegment(App.Vector(0, 330, 0), App.Vector(0, 1016, 0)),
    Part.LineSegment(App.Vector(0, 1016, 0), App.Vector(25, 1016, 0)),
    Part.LineSegment(App.Vector(25, 1016, 0), App.Vector(25, 330, 0)),
    Part.LineSegment(App.Vector(25, 330, 0), App.Vector(0, 330, 0)),
], False)
sketch4.addConstraint([
    Sketcher.Constraint("Coincident", 0, 2, 1, 1),
    Sketcher.Constraint("Coincident", 1, 2, 2, 1),
    Sketcher.Constraint("Coincident", 2, 2, 3, 1),
    Sketcher.Constraint("Coincident", 3, 2, 0, 1),
    Sketcher.Constraint("Vertical", 0),
    Sketcher.Constraint("Horizontal", 1),
    Sketcher.Constraint("Vertical", 2),
    Sketcher.Constraint("Horizontal", 3),
    Sketcher.Constraint("PointOnObject", 0, 2, -2),
    Sketcher.Constraint("DistanceX", 1, 1, 1, 2, Q("1 in")),
    Sketcher.Constraint("DistanceY", -1, 1, 0, 2, Q("40 in")),
    Sketcher.Constraint("DistanceY", 0, 1, 0, 2, Q("685.827247 mm")),
])
sketch4.setExpression("Constraints[9]", "Params.sketch4_width")
pocket3 = doc.addObject("PartDesign::Pocket", "Pocket002")
body.addObject(pocket3)
pocket3.Profile = sketch4
pocket3.Type = "ThroughAll"
pocket3.Reversed = True

doc.recompute()
